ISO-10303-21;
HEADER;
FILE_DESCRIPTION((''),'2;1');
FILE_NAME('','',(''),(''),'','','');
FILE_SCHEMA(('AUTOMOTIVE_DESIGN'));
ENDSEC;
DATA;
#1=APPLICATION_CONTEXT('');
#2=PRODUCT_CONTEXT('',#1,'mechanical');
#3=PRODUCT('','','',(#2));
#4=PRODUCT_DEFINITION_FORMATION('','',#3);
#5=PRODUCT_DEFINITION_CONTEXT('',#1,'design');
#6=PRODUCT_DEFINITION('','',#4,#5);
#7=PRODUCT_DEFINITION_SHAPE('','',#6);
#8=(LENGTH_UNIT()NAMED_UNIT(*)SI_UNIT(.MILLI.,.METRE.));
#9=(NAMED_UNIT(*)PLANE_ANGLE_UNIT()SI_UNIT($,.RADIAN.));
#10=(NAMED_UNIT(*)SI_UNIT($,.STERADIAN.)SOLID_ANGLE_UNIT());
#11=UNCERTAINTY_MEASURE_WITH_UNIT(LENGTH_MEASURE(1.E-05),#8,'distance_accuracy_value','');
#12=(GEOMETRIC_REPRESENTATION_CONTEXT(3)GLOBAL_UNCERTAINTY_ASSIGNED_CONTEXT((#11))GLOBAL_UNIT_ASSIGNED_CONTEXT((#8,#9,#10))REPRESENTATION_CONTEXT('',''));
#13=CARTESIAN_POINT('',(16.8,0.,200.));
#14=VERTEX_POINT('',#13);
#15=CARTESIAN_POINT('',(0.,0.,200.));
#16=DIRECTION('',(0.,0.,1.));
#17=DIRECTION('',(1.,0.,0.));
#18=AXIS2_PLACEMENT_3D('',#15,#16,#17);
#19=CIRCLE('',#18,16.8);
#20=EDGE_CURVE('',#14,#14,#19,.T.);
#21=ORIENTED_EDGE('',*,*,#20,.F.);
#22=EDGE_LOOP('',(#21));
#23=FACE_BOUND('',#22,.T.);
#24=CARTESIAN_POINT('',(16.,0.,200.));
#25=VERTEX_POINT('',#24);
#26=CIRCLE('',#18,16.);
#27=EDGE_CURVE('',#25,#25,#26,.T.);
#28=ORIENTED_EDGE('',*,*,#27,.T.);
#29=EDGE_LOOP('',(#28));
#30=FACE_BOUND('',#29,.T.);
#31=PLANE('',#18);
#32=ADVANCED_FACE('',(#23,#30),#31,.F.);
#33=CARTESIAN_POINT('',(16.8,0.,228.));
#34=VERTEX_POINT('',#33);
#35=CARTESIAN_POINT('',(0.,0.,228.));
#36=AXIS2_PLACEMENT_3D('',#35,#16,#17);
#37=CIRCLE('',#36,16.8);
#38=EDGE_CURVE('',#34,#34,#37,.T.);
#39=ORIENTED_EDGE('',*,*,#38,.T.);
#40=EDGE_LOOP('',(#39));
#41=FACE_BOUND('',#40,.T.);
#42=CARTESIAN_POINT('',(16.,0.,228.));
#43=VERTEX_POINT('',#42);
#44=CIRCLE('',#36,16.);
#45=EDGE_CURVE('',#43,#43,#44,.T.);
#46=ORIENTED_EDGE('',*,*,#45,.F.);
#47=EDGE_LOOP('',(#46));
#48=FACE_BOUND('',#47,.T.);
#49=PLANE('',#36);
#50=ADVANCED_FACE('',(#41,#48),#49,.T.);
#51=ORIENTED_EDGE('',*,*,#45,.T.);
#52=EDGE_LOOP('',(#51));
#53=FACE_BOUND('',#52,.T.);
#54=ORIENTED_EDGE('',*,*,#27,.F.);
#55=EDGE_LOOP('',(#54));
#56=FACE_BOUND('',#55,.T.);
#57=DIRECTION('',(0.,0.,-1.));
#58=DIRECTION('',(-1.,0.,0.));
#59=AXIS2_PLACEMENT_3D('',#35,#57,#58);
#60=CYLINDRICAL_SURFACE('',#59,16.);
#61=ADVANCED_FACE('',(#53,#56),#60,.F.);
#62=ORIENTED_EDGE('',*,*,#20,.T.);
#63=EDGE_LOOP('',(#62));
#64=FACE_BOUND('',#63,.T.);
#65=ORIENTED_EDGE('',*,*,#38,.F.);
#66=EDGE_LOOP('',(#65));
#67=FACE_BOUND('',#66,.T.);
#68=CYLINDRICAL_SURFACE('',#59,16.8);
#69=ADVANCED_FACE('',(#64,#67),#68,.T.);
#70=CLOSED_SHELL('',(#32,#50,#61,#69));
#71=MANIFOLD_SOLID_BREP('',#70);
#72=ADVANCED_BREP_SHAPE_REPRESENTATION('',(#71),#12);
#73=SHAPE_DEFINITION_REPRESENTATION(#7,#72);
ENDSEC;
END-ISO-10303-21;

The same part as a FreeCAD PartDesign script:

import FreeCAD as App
import Part
import Sketcher
from FreeCAD import Vector

doc = App.newDocument("Part")
body = doc.addObject("PartDesign::Body", "Body")

# Sketch on XY plane
sketch1 = doc.addObject("Sketcher::SketchObject", "Sketch")
body.addObject(sketch1)
sketch1.AttachmentSupport = (doc.XY_Plane, [""])
sketch1.MapMode = "FlatFace"
sketch1.AttachmentOffset = App.Placement(Vector(0, 0, 200), App.Rotation())
sketch1.addGeometry([
    Part.Circle(Vector(0, 0, 0), Vector(0, 0, 1), 16.8),
    Part.Circle(Vector(0, 0, 0), Vector(0, 0, 1), 16),
], False)
sketch1.addConstraint([
    Sketcher.Constraint("Coincident", 0, 3, -1, 1),
    Sketcher.Constraint("Coincident", 1, 3, -1, 1),
    Sketcher.Constraint("Diameter", 1, 32.0),
    Sketcher.Constraint("Diameter", 0, 33.6),
])
pad1 = doc.addObject("PartDesign::Pad", "Pad")
body.addObject(pad1)
pad1.Profile = sketch1
pad1.Length = 28

doc.recompute()
